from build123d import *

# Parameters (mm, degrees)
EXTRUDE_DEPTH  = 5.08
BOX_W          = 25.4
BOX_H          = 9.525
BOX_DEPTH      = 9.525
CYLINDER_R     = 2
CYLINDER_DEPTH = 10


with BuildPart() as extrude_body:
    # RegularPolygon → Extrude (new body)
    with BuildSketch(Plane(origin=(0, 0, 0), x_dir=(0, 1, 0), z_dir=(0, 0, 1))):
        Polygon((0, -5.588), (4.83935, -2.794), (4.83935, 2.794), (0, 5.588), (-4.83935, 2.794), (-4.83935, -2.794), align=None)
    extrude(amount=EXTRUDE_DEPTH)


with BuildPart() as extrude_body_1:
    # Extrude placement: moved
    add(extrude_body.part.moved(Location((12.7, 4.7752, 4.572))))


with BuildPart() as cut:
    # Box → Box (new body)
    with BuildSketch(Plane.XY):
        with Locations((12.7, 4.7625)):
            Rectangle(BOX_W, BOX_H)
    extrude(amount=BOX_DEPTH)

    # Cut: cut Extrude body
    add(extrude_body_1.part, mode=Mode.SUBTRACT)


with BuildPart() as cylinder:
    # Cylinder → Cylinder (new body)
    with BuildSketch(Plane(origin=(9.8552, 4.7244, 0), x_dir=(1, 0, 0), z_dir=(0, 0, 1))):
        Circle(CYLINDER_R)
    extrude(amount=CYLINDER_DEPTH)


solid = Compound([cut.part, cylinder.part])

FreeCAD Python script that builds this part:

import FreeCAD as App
import Part
import Sketcher
Q = App.Units.Quantity


def add_polygon(sketch, points):
    """Adds a closed chain of lines whose ends are joined by coincident constraints."""
    first, n = sketch.GeometryCount, len(points)
    for a, b in zip(points, points[1:] + points[:1]):
        sketch.addGeometry(Part.LineSegment(App.Vector(*a, 0), App.Vector(*b, 0)), False)
    for i in range(n):
        sketch.addConstraint(Sketcher.Constraint("Coincident", first + i, 2, first + (i + 1) % n, 1))

doc = App.newDocument("Part")
body = doc.addObject("PartDesign::Body", "Body")

sketch1 = body.newObject("Sketcher::SketchObject", "Sketch")
sketch1.AttachmentSupport = (doc.getObject("XY_Plane"), [""])
sketch1.MapMode = "FlatFace"
add_polygon(sketch1, [(6, 0), (3, 5), (-3, 5), (-6, 0), (-3, -5), (3, -5)])
sketch1.addConstraint([
    Sketcher.Constraint("Horizontal", 1),
    Sketcher.Constraint("Horizontal", 4),
    Sketcher.Constraint("Symmetric", 0, 2, 3, 2, -1, 1),
    Sketcher.Constraint("Symmetric", 2, 2, 5, 2, -1, 1),
    Sketcher.Constraint("PointOnObject", 2, 2, -1),
    Sketcher.Constraint("Parallel", 2, 5),
    Sketcher.Constraint("Vertical", 1, 2, 3, 2),
    Sketcher.Constraint("Angle", 0, Q("120 deg")),
    Sketcher.Constraint("DistanceX", 1, 2, 1, 1, Q("0.22 in")),
    Sketcher.Constraint("Distance", 0, Q("0.22 in")),
])
pad1 = body.newObject("PartDesign::Pad", "Pad")
pad1.Profile = sketch1
pad1.Length = Q("0.2 in")
body2 = doc.addObject("PartDesign::Body", "Body001")
doc.recompute()

body.Placement = App.Placement(App.Vector(12.7, 4.7752, 4.572), App.Rotation(App.Vector(0, 0, 1), 0))
boolean = body2.newObject("PartDesign::Boolean", "Boolean")
boolean.Type = "Fuse"
boolean.addObjects([body])
body3 = doc.addObject("PartDesign::Body", "Body002")

sketch2 = body3.newObject("Sketcher::SketchObject", "Sketch001")
sketch2.AttachmentSupport = (doc.getObject("XY_Plane002"), [""])
sketch2.MapMode = "FlatFace"
add_polygon(sketch2, [(0, 10), (0, 0), (25, 0), (25, 10)])
sketch2.addConstraint([
    Sketcher.Constraint("Vertical", 0),
    Sketcher.Constraint("Horizontal", 1),
    Sketcher.Constraint("Vertical", 2),
    Sketcher.Constraint("Horizontal", 3),
    Sketcher.Constraint("Coincident", 0, 2, -1, 1),
    Sketcher.Constraint("DistanceX", 1, 1, 1, 2, Q("1 in")),
    Sketcher.Constraint("DistanceY", 0, 2, 0, 1, Q("0.375 in")),
])
pad2 = body3.newObject("PartDesign::Pad", "Pad001")
pad2.Profile = sketch2
pad2.Length = Q("0.375 in")
doc.recompute()

boolean2 = body3.newObject("PartDesign::Boolean", "Boolean001")
boolean2.Type = "Cut"
boolean2.addObjects([body2])
body4 = doc.addObject("PartDesign::Body", "Body003")

sketch3 = body4.newObject("Sketcher::SketchObject", "Sketch002")
sketch3.AttachmentSupport = (doc.getObject("XY_Plane003"), [""])
sketch3.MapMode = "FlatFace"
sketch3.addGeometry(Part.Circle(App.Vector(9.9, 4.7, 0), App.Vector(0, 0, 1), 2), False)
sketch3.addConstraint([
    Sketcher.Constraint("Diameter", 0, Q("4 mm")),
    Sketcher.Constraint("DistanceX", -1, 1, 0, 3, Q("0.388 in")),
    Sketcher.Constraint("DistanceY", -1, 1, 0, 3, Q("0.186 in")),
])
pad3 = body4.newObject("PartDesign::Pad", "Pad002")
pad3.Profile = sketch3
pad3.Length = 10

doc.recompute()
